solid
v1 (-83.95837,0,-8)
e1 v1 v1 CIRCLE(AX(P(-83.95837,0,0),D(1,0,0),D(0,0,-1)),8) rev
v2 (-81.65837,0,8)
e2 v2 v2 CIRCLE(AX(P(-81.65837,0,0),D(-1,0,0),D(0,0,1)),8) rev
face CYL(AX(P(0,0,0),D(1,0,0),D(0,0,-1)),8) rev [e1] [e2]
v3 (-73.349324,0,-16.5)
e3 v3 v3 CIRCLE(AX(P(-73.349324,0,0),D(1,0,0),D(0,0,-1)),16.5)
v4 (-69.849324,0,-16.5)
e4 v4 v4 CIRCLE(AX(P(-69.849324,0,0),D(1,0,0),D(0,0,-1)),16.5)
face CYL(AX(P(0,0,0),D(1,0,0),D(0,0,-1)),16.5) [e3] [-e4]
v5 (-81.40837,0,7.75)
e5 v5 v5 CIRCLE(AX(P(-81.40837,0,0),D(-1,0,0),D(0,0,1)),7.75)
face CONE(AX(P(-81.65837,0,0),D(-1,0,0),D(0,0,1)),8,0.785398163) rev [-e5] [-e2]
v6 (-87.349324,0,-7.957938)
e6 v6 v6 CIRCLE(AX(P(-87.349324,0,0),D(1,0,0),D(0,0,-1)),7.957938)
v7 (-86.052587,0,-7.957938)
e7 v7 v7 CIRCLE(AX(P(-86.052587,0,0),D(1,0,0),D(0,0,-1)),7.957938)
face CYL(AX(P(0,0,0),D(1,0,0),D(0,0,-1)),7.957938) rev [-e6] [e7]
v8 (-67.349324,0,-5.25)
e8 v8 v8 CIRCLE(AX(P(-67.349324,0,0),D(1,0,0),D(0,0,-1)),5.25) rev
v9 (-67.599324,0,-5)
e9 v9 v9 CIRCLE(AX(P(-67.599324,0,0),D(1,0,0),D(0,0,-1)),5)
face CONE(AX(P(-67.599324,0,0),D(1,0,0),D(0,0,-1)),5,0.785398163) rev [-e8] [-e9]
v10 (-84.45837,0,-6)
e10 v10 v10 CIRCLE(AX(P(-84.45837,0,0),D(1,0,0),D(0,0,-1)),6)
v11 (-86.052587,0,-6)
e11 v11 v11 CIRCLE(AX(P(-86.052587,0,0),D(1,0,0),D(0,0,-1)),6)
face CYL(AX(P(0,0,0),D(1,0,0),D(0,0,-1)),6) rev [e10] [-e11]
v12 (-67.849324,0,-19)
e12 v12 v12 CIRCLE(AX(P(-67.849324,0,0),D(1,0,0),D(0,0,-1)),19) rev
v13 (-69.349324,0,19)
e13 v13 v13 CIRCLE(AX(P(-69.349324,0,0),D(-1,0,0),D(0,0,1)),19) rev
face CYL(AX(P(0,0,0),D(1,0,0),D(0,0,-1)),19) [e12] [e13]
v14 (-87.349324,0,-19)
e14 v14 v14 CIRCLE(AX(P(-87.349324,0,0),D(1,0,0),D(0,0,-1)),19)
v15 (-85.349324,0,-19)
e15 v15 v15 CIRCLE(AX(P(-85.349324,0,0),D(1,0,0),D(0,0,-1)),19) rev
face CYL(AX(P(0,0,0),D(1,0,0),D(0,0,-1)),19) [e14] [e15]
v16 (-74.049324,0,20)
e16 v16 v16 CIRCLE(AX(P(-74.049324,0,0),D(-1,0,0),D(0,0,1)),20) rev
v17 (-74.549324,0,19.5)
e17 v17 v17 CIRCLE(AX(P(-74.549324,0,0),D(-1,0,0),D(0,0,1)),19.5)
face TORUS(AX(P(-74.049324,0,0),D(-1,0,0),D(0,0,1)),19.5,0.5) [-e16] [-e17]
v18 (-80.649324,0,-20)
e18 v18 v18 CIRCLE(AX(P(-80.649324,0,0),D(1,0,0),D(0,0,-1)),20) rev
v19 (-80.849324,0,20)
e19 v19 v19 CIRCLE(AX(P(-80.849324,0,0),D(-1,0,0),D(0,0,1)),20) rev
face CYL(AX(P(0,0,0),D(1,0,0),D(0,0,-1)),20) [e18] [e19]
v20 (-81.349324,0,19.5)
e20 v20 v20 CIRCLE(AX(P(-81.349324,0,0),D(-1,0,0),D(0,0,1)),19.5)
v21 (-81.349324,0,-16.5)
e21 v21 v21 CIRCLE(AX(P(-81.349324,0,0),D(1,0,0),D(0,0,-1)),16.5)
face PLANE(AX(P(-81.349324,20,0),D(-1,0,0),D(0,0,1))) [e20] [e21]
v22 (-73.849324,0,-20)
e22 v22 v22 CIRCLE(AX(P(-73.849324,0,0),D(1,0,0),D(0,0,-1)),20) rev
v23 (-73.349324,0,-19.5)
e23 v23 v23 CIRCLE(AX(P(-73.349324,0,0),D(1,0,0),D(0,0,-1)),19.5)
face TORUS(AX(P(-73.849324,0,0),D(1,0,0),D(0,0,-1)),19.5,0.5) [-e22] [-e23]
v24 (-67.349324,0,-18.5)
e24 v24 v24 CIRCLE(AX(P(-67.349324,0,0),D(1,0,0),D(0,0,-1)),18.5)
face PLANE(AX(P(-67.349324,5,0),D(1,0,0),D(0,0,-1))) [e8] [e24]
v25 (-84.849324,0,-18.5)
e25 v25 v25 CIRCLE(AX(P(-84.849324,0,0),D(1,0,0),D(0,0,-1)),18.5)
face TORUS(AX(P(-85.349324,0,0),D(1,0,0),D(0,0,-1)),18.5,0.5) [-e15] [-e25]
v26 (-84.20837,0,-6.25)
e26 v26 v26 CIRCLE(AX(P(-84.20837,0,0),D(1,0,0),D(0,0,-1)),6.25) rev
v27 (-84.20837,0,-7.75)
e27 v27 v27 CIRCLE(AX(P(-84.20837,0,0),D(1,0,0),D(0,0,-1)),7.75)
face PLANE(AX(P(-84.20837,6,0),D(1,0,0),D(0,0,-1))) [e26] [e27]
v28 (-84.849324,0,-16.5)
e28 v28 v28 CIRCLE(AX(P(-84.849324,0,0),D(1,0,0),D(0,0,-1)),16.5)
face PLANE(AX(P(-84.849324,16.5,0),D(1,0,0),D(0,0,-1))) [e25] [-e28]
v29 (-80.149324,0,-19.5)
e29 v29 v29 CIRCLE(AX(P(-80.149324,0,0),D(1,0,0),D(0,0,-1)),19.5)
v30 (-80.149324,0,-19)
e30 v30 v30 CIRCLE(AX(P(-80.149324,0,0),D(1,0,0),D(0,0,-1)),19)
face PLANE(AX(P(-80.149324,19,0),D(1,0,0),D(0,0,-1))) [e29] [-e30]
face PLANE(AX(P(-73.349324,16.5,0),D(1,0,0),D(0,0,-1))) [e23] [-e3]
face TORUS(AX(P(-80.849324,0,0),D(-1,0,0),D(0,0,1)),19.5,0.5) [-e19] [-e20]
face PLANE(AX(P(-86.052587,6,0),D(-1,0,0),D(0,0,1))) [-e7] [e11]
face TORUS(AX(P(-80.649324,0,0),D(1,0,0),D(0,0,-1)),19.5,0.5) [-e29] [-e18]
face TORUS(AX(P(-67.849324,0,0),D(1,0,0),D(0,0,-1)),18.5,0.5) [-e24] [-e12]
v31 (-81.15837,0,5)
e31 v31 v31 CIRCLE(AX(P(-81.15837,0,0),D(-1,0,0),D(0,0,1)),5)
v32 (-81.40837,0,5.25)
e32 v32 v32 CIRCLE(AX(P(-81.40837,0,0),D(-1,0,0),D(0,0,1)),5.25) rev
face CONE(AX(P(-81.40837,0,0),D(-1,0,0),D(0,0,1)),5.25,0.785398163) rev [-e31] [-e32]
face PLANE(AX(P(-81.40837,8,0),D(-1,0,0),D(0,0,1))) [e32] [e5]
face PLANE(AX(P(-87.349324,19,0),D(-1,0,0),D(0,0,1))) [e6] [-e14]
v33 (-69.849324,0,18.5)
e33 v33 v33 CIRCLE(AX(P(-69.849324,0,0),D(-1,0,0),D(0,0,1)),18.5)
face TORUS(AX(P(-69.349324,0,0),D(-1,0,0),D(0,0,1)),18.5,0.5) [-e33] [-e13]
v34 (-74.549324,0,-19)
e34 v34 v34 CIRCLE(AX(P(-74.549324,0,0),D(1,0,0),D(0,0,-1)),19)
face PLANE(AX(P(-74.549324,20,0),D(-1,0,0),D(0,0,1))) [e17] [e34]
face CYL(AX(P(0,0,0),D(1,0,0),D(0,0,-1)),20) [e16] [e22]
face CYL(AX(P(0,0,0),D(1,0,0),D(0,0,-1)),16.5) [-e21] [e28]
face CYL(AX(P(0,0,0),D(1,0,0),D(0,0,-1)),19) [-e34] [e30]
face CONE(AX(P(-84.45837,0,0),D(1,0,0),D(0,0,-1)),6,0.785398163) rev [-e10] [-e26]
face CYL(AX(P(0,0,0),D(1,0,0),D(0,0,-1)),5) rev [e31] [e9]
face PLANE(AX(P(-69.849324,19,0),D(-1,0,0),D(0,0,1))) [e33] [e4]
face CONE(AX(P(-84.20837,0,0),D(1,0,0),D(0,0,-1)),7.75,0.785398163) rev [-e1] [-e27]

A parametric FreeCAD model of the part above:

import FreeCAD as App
import Part
import Sketcher

V = App.Vector


def edges_at(feature, points):
    """Names of the edges that pass closest to the given points."""
    edges = feature.Shape.Edges
    near = lambda p: min(range(len(edges)), key=lambda i: edges[i].distToShape(Part.Vertex(*p))[0])
    return sorted({f"Edge{near(p) + 1}" for p in points})

doc = App.newDocument("Part")
body = doc.addObject("PartDesign::Body", "Body")

sketch1 = body.newObject("Sketcher::SketchObject", "Sketch")
sketch1.AttachmentSupport = (doc.getObject("XY_Plane"), [""])
sketch1.MapMode = "FlatFace"
sketch1.addGeometry(Part.LineSegment(V(-67.3, 19, 0), V(-69.8, 19, 0)), False)
sketch1.addGeometry(Part.LineSegment(V(-69.8, 19, 0), V(-69.8, 16.5, 0)), False)
sketch1.addGeometry(Part.LineSegment(V(-69.8, 16.5, 0), V(-73.3, 16.5, 0)), False)
sketch1.addGeometry(Part.LineSegment(V(-73.3, 16.5, 0), V(-73.3, 20, 0)), False)
sketch1.addGeometry(Part.LineSegment(V(-73.3, 20, 0), V(-74.5, 20, 0)), False)
sketch1.addGeometry(Part.LineSegment(V(-74.5, 20, 0), V(-74.5, 19, 0)), False)
sketch1.addGeometry(Part.LineSegment(V(-74.5, 19, 0), V(-80.1, 19, 0)), False)
sketch1.addGeometry(Part.LineSegment(V(-80.1, 19, 0), V(-80.1, 20, 0)), False)
sketch1.addGeometry(Part.LineSegment(V(-80.1, 20, 0), V(-81.3, 20, 0)), False)
sketch1.addGeometry(Part.LineSegment(V(-81.3, 20, 0), V(-81.3, 16.5, 0)), False)
sketch1.addGeometry(Part.LineSegment(V(-81.3, 16.5, 0), V(-84.8, 16.5, 0)), False)
sketch1.addGeometry(Part.LineSegment(V(-84.8, 16.5, 0), V(-84.8, 19, 0)), False)
sketch1.addGeometry(Part.LineSegment(V(-84.8, 19, 0), V(-87.3, 19, 0)), False)
sketch1.addGeometry(Part.LineSegment(V(-87.3, 19, 0), V(-87.3, 8, 0)), False)
sketch1.addGeometry(Part.LineSegment(V(-87.3, 8, 0), V(-86.1, 8, 0)), False)
sketch1.addGeometry(Part.LineSegment(V(-86.1, 8, 0), V(-86.1, 6, 0)), False)
sketch1.addGeometry(Part.LineSegment(V(-86.1, 6, 0), V(-84.2, 6, 0)), False)
sketch1.addGeometry(Part.LineSegment(V(-84.2, 6, 0), V(-84.2, 8, 0)), False)
sketch1.addGeometry(Part.LineSegment(V(-84.2, 8, 0), V(-81.4, 8, 0)), False)
sketch1.addGeometry(Part.LineSegment(V(-81.4, 8, 0), V(-81.4, 5, 0)), False)
sketch1.addGeometry(Part.LineSegment(V(-81.4, 5, 0), V(-67.3, 5, 0)), False)
sketch1.addGeometry(Part.LineSegment(V(-67.3, 5, 0), V(-67.3, 19, 0)), False)
sketch1.addConstraint(Sketcher.Constraint("Coincident", 0, 2, 1, 1))
sketch1.addConstraint(Sketcher.Constraint("Coincident", 1, 2, 2, 1))
sketch1.addConstraint(Sketcher.Constraint("Coincident", 2, 2, 3, 1))
sketch1.addConstraint(Sketcher.Constraint("Coincident", 3, 2, 4, 1))
sketch1.addConstraint(Sketcher.Constraint("Coincident", 4, 2, 5, 1))
sketch1.addConstraint(Sketcher.Constraint("Coincident", 5, 2, 6, 1))
sketch1.addConstraint(Sketcher.Constraint("Coincident", 6, 2, 7, 1))
sketch1.addConstraint(Sketcher.Constraint("Coincident", 7, 2, 8, 1))
sketch1.addConstraint(Sketcher.Constraint("Coincident", 8, 2, 9, 1))
sketch1.addConstraint(Sketcher.Constraint("Coincident", 9, 2, 10, 1))
sketch1.addConstraint(Sketcher.Constraint("Coincident", 10, 2, 11, 1))
sketch1.addConstraint(Sketcher.Constraint("Coincident", 11, 2, 12, 1))
sketch1.addConstraint(Sketcher.Constraint("Coincident", 12, 2, 13, 1))
sketch1.addConstraint(Sketcher.Constraint("Coincident", 13, 2, 14, 1))
sketch1.addConstraint(Sketcher.Constraint("Coincident", 14, 2, 15, 1))
sketch1.addConstraint(Sketcher.Constraint("Coincident", 15, 2, 16, 1))
sketch1.addConstraint(Sketcher.Constraint("Coincident", 16, 2, 17, 1))
sketch1.addConstraint(Sketcher.Constraint("Coincident", 17, 2, 18, 1))
sketch1.addConstraint(Sketcher.Constraint("Coincident", 18, 2, 19, 1))
sketch1.addConstraint(Sketcher.Constraint("Coincident", 19, 2, 20, 1))
sketch1.addConstraint(Sketcher.Constraint("Coincident", 20, 2, 21, 1))
sketch1.addConstraint(Sketcher.Constraint("Coincident", 21, 2, 0, 1))
sketch1.addConstraint(Sketcher.Constraint("Horizontal", 0))
sketch1.addConstraint(Sketcher.Constraint("Vertical", 1))
sketch1.addConstraint(Sketcher.Constraint("Horizontal", 2))
sketch1.addConstraint(Sketcher.Constraint("Vertical", 3))
sketch1.addConstraint(Sketcher.Constraint("Horizontal", 4))
sketch1.addConstraint(Sketcher.Constraint("Vertical", 5))
sketch1.addConstraint(Sketcher.Constraint("Horizontal", 6))
sketch1.addConstraint(Sketcher.Constraint("Vertical", 7))
sketch1.addConstraint(Sketcher.Constraint("Horizontal", 8))
sketch1.addConstraint(Sketcher.Constraint("Vertical", 9))
sketch1.addConstraint(Sketcher.Constraint("Horizontal", 10))
sketch1.addConstraint(Sketcher.Constraint("Vertical", 11))
sketch1.addConstraint(Sketcher.Constraint("Horizontal", 12))
sketch1.addConstraint(Sketcher.Constraint("Vertical", 13))
sketch1.addConstraint(Sketcher.Constraint("Horizontal", 14))
sketch1.addConstraint(Sketcher.Constraint("Vertical", 15))
sketch1.addConstraint(Sketcher.Constraint("Horizontal", 16))
sketch1.addConstraint(Sketcher.Constraint("Vertical", 17))
sketch1.addConstraint(Sketcher.Constraint("Horizontal", 18))
sketch1.addConstraint(Sketcher.Constraint("Vertical", 19))
sketch1.addConstraint(Sketcher.Constraint("Horizontal", 20))
sketch1.addConstraint(Sketcher.Constraint("Vertical", 21))
sketch1.addConstraint(Sketcher.Constraint("Horizontal", 0, 2, 5, 2))
sketch1.addConstraint(Sketcher.Constraint("Horizontal", 4, 2, 7, 2))
sketch1.addConstraint(Sketcher.Constraint("Horizontal", 2, 2, 9, 2))
sketch1.addConstraint(Sketcher.Constraint("Horizontal", 6, 2, 11, 2))
sketch1.addConstraint(Sketcher.Constraint("Equal", 4, 8))
sketch1.addConstraint(Sketcher.Constraint("Equal", 2, 10))
sketch1.addConstraint(Sketcher.Constraint("Equal", 0, 12))
sketch1.addConstraint(Sketcher.Constraint("Equal", 12, 1))
sketch1.addConstraint(Sketcher.Constraint("Equal", 10, 3))
sketch1.addConstraint(Sketcher.Constraint("DistanceY", 5, 2, 5, 1, 1.0))
sketch1.addConstraint(Sketcher.Constraint("DistanceY", 17, 1, 17, 2, 2.0))
sketch1.addConstraint(Sketcher.Constraint("DistanceY", 19, 2, 19, 1, 3.0))
sketch1.addConstraint(Sketcher.Constraint("DistanceY", 21, 1, 21, 2, 14.0))
sketch1.addConstraint(Sketcher.Constraint("DistanceX", 0, 2, 0, 1, 2.5))
sketch1.addConstraint(Sketcher.Constraint("DistanceX", 4, 2, 4, 1, 1.2))
sketch1.addConstraint(Sketcher.Constraint("DistanceX", 6, 2, 6, 1, 5.6))
sketch1.addConstraint(Sketcher.Constraint("DistanceX", 18, 1, 18, 2, 2.8))
sketch1.addConstraint(Sketcher.Constraint("DistanceY", -1, 1, 0, 2, 19.0))
sketch1.addConstraint(Sketcher.Constraint("DistanceY", 13, 2, 13, 1, 11.042062))
sketch1.addConstraint(Sketcher.Constraint("DistanceX", 14, 1, 14, 2, 1.296737))
sketch1.addConstraint(Sketcher.Constraint("DistanceX", 16, 1, 16, 2, 1.844217))
sketch1.addConstraint(Sketcher.Constraint("DistanceX", 16, 2, -1, 1, 84.20837))
revolution = body.newObject("PartDesign::Revolution", "Revolution")
revolution.Profile = sketch1
revolution.ReferenceAxis = (sketch1, ["H_Axis"])
revolution.Angle = 360
doc.recompute()

chamfer = body.newObject("PartDesign::Chamfer", "Chamfer")
chamfer.Base = (revolution, edges_at(revolution, [
    (-67.349, 0, 5),
    (-81.408, 0, 5),
    (-81.408, 0, 8),
    (-84.208, 0, 8),
    (-84.208, 0, 6),
]))
chamfer.Size = 0.25
doc.recompute()

fillet = body.newObject("PartDesign::Fillet", "Fillet")
fillet.Base = (chamfer, edges_at(chamfer, [
    (-84.849, 0, 19),
    (-81.349, 0, 20),
    (-80.149, 0, 20),
    (-74.549, 0, 20),
    (-73.349, 0, 20),
    (-69.849, 0, 19),
    (-67.349, 0, 19),
]))
fillet.Radius = 0.5

doc.recompute()
